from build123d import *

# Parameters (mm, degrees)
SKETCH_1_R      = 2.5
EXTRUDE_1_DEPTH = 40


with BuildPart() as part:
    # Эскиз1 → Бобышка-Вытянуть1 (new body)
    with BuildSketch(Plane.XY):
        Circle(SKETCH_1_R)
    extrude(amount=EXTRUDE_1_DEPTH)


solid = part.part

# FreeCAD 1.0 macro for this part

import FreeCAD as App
import Part
import Sketcher

doc = App.newDocument("Part")
params = doc.addObject("Spreadsheet::Sheet", "Params")
for row, (alias, value) in enumerate([
    ("sketch1_diameter", "5 mm"),
    ("pad1_length", "40 mm"),
], start=1):
    params.set(f"A{row}", alias)
    params.set(f"B{row}", "=" + value)
    params.setAlias(f"B{row}", alias)

body = doc.addObject("PartDesign::Body", "Body")

# Sketch on XY plane
sketch1 = body.newObject("Sketcher::SketchObject", "Sketch")
sketch1.AttachmentSupport = (doc.getObject("XY_Plane"), [""])
sketch1.MapMode = "FlatFace"
sketch1.addGeometry(Part.Circle(App.Vector(0, 0, 0), App.Vector(0, 0, 1), 2.5), False)
sketch1.addConstraint(Sketcher.Constraint("Coincident", 0, 3, -1, 1))
sketch1.addConstraint(Sketcher.Constraint("Diameter", 0, 5.0))
sketch1.setExpression("Constraints[1]", "Params.sketch1_diameter")
pad1 = body.newObject("PartDesign::Pad", "Pad")
pad1.Profile = sketch1
pad1.setExpression("Length", "Params.pad1_length")

doc.recompute()
